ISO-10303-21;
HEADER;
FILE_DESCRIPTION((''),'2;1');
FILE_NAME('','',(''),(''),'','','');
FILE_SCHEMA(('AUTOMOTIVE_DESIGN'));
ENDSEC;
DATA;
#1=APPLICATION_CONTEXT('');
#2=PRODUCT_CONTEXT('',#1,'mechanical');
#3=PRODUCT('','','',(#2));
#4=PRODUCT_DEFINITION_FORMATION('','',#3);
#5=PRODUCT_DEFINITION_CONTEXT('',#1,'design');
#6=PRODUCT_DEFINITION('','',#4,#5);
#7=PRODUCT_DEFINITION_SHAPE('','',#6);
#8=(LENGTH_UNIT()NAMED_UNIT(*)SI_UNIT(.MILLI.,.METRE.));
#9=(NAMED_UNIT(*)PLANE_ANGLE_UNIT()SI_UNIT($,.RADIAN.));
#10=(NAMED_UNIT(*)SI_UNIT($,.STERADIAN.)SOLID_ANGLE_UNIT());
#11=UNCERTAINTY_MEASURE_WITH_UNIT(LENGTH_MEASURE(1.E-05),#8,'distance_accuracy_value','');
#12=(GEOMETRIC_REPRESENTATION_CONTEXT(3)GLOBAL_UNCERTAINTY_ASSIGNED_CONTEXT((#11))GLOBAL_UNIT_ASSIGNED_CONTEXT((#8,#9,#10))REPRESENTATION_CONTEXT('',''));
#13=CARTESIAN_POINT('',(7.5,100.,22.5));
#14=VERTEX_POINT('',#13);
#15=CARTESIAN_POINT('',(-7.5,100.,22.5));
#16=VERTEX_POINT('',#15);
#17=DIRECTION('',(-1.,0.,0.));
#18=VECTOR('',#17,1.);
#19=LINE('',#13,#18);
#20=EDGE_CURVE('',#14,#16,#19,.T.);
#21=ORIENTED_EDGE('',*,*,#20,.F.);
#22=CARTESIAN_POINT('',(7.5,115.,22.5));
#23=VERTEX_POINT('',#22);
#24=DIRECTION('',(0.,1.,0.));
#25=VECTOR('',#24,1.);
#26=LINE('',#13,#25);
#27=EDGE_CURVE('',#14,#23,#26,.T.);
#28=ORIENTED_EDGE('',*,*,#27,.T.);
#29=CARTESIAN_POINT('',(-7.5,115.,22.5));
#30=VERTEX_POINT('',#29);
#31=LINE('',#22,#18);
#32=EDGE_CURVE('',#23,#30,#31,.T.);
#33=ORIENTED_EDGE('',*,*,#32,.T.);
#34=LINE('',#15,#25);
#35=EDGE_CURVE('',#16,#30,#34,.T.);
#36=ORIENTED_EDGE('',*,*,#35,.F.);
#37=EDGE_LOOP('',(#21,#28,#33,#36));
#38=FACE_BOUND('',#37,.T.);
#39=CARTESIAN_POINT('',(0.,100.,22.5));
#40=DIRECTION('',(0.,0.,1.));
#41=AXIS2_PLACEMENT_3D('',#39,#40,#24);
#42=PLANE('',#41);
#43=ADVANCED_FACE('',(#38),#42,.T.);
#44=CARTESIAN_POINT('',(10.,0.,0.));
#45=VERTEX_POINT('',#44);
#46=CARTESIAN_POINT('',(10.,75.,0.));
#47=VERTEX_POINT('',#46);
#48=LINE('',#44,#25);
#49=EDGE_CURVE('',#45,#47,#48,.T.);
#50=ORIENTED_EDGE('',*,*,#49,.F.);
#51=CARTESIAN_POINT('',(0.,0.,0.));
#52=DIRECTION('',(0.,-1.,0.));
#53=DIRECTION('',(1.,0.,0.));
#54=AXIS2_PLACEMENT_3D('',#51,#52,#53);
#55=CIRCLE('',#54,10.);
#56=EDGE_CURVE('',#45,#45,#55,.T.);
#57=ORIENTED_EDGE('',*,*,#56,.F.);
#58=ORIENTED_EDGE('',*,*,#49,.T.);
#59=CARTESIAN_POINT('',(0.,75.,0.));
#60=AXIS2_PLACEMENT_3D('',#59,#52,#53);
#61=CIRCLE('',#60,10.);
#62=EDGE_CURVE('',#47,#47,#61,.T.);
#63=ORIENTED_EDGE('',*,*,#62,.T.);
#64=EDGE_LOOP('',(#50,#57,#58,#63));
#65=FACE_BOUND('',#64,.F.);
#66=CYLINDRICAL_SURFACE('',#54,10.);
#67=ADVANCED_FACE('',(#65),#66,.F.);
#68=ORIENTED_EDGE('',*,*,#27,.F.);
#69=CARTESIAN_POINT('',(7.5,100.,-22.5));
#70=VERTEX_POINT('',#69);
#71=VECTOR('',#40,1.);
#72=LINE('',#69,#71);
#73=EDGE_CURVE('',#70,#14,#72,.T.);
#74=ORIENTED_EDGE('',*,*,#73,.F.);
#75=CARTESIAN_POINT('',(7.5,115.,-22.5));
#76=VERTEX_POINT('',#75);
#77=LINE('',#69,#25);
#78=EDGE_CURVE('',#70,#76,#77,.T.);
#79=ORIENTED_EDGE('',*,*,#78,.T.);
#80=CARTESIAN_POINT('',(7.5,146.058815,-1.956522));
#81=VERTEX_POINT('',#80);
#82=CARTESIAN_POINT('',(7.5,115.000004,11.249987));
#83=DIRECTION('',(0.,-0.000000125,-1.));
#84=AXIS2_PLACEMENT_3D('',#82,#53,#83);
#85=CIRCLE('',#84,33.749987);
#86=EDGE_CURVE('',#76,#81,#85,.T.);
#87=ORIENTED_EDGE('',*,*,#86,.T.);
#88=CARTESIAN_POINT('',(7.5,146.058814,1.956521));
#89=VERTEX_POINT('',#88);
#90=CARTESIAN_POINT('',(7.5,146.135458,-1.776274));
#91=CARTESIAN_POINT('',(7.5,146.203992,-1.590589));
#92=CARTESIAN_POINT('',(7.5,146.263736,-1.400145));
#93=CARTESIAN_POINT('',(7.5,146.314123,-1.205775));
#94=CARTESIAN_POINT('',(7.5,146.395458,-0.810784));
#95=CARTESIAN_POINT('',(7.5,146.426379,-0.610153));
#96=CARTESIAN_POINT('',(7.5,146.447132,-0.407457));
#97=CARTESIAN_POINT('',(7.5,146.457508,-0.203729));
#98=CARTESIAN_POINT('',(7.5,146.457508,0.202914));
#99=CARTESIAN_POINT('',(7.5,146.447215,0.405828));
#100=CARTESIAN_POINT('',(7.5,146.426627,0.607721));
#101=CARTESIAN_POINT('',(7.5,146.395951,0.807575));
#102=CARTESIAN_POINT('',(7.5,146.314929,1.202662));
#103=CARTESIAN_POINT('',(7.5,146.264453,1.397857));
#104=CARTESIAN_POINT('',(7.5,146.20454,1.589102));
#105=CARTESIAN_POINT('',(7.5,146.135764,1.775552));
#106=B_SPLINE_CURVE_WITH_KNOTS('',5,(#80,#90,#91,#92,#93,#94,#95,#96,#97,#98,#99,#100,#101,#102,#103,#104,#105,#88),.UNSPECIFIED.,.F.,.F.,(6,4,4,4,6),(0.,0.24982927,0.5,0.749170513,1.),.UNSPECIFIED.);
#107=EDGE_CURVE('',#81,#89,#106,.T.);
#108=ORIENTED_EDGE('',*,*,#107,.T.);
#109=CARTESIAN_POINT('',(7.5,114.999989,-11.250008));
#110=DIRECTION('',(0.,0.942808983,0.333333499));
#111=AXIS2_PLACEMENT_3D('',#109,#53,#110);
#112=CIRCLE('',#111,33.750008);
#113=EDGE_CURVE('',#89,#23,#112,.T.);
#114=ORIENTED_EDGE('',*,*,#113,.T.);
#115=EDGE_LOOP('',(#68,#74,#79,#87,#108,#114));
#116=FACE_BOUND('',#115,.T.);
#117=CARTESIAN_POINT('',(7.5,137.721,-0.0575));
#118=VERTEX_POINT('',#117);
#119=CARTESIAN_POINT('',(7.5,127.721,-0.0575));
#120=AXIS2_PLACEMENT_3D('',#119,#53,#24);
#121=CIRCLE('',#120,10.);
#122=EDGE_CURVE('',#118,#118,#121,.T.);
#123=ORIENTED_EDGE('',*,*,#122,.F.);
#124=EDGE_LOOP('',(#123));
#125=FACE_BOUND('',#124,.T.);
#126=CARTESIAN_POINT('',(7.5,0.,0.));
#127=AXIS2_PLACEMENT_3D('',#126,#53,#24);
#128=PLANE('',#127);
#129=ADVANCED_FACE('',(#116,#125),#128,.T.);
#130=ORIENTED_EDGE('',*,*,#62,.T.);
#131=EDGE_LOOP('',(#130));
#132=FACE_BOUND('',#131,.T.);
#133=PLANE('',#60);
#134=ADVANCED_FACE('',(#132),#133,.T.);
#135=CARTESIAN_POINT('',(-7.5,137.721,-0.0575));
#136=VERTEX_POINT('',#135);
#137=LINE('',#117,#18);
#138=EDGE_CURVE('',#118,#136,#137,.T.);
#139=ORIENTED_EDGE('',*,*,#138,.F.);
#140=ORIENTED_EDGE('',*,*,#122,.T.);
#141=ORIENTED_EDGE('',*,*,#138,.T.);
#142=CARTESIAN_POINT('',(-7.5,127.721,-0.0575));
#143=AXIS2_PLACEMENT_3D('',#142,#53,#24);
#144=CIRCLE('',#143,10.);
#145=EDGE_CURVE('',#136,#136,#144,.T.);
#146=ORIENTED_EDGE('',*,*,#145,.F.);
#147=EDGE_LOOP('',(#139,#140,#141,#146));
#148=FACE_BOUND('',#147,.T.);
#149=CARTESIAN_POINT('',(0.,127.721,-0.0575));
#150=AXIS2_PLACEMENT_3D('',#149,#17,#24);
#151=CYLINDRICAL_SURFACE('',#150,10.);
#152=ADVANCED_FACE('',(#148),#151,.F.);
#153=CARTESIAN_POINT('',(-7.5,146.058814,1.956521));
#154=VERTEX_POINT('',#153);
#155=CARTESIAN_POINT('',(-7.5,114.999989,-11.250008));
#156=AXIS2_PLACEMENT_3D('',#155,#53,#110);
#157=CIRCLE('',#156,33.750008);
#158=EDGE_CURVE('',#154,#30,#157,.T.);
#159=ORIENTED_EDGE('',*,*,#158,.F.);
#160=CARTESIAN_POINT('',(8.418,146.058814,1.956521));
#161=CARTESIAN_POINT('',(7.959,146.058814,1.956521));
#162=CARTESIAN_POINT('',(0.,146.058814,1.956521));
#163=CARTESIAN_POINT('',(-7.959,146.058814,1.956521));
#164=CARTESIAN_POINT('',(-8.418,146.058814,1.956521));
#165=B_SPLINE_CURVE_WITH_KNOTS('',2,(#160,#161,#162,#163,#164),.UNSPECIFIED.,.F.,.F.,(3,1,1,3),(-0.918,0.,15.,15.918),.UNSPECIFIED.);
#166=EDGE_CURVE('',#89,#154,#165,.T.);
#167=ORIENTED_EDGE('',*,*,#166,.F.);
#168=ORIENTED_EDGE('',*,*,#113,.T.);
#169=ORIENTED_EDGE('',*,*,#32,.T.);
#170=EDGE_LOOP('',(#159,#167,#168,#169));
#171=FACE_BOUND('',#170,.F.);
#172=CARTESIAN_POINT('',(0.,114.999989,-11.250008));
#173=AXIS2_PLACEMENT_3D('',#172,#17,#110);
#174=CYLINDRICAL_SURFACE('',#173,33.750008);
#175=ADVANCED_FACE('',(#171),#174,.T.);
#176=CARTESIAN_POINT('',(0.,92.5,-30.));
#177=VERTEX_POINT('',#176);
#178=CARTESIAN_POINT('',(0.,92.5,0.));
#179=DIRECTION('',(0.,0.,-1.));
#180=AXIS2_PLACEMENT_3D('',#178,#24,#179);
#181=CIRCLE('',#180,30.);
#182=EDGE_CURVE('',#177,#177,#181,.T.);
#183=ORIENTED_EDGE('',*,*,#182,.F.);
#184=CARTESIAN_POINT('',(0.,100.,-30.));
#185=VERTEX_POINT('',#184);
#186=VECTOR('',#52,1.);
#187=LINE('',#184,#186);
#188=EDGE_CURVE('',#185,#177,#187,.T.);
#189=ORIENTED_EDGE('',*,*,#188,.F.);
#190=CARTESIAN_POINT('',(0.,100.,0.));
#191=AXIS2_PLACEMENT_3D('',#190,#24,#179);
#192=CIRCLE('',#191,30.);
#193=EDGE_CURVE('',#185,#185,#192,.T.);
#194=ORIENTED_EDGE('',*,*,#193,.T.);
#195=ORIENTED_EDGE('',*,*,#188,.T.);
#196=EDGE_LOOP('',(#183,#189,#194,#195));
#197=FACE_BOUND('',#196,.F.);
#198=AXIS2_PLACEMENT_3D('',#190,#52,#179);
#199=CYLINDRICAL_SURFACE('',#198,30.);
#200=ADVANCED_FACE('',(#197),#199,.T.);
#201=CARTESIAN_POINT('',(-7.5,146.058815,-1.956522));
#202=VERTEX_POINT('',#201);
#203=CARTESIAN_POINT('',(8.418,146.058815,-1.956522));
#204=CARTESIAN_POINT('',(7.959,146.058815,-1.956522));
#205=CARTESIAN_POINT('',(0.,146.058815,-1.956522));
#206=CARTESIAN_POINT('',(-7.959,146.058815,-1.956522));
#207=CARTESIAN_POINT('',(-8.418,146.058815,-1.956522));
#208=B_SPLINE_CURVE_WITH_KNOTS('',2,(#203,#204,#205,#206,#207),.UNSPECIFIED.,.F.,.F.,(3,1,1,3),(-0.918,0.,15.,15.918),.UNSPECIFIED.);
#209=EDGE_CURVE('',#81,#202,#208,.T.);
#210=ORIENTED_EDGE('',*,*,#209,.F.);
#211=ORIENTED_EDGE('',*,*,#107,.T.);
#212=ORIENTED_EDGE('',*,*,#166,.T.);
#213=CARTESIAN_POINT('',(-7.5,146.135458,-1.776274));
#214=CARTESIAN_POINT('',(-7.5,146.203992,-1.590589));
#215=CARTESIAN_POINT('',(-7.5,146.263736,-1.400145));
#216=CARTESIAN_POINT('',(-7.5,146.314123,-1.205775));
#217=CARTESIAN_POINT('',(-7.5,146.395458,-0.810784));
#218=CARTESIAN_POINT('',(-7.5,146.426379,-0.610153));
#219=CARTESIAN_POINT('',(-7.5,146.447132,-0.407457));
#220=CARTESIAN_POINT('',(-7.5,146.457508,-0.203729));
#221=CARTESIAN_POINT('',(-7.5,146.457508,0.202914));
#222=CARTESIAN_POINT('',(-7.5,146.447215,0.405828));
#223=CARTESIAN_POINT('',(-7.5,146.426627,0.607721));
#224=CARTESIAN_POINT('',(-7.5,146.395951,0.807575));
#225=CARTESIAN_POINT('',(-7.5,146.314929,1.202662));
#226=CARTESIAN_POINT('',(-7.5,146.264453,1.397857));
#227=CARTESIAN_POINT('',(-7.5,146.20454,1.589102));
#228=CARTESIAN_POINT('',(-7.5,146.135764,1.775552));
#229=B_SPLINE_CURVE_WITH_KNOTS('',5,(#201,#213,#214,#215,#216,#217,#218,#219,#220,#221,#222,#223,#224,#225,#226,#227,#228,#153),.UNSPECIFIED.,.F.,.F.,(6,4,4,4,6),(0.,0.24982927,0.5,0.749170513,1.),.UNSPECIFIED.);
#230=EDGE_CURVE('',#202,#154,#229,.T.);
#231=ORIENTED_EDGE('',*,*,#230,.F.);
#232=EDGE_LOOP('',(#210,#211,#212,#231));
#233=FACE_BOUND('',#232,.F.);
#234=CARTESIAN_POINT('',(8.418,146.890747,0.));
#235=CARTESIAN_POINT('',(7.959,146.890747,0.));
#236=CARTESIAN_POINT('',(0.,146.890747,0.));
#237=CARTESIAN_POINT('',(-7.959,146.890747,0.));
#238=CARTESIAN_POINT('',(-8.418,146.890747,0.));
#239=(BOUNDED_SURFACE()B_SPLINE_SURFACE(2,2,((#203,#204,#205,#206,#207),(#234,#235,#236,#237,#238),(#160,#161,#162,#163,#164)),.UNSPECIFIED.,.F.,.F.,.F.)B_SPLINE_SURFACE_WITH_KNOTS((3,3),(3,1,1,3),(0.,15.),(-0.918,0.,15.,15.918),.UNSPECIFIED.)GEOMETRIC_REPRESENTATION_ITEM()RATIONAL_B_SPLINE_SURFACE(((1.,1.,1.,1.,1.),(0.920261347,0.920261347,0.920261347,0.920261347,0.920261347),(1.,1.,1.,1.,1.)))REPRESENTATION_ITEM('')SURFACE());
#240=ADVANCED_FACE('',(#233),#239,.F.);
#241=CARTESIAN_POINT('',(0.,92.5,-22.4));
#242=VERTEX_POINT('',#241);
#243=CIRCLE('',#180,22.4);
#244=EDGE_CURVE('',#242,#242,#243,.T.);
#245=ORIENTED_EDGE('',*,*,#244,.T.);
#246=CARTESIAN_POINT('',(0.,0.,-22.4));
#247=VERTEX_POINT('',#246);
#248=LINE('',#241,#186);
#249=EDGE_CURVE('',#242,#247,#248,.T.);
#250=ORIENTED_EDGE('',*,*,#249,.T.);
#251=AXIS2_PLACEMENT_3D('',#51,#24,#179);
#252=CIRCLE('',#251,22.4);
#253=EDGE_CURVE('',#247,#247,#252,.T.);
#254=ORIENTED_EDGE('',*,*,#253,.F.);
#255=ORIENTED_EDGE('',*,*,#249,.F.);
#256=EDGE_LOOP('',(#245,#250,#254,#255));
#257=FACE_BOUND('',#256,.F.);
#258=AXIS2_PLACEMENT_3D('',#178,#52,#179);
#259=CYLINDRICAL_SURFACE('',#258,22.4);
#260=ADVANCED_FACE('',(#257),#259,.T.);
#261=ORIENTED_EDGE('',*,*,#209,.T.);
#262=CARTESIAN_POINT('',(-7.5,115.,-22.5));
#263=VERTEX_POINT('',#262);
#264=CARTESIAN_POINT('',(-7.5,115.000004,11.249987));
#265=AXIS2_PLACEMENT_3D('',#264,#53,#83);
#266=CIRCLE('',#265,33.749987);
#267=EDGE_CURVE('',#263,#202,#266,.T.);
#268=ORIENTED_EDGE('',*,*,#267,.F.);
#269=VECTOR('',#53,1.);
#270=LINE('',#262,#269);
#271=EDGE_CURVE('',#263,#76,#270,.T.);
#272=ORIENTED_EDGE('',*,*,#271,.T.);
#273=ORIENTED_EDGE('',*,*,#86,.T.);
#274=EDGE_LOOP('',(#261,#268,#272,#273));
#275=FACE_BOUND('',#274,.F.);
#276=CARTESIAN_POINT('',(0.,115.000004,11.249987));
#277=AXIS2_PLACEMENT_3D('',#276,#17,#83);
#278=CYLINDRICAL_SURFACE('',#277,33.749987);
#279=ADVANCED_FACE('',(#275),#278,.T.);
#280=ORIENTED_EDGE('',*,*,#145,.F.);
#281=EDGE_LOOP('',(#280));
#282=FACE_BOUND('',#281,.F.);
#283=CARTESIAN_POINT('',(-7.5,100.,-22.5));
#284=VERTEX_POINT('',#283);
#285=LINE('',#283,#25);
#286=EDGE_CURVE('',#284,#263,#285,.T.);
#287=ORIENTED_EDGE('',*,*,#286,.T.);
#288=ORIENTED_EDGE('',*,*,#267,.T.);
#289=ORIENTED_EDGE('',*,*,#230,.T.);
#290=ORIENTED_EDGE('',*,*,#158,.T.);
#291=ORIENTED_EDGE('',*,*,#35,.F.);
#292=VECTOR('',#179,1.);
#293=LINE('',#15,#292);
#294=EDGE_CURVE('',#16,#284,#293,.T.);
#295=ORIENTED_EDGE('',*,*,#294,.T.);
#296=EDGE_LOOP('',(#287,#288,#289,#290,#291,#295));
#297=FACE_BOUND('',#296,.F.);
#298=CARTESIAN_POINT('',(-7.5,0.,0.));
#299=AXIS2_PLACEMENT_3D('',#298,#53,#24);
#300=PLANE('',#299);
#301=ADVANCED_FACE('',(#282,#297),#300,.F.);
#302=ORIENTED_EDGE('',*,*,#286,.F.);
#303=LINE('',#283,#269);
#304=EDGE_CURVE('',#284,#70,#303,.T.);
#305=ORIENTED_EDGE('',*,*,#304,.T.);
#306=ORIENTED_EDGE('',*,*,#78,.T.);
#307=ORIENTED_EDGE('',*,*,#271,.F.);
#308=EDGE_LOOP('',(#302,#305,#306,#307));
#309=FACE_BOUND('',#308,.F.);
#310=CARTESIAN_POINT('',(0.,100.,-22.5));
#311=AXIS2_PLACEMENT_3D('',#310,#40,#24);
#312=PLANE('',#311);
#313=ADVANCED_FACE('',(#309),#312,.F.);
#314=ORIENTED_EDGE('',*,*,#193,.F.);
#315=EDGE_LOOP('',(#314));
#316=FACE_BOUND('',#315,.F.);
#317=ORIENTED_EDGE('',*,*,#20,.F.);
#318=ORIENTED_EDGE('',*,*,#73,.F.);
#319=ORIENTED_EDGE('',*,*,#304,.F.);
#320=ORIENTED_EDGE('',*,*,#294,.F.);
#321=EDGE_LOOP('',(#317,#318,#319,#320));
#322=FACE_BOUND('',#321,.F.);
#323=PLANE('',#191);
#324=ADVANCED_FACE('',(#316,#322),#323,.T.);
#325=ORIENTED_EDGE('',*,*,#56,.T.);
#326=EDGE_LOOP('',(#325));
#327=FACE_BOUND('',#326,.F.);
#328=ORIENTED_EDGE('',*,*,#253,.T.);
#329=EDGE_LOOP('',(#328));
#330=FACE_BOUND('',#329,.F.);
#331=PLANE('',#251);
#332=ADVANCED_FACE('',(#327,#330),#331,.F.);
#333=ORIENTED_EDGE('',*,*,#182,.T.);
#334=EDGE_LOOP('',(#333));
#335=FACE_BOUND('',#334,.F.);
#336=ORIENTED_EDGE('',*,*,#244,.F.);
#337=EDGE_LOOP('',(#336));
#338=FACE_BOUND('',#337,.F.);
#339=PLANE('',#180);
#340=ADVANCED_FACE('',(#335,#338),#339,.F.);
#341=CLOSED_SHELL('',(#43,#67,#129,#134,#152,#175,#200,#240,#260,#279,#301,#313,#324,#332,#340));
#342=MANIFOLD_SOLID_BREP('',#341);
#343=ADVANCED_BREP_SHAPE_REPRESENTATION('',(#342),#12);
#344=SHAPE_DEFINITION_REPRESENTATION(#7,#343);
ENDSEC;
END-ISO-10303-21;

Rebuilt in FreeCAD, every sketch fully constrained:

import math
import FreeCAD as App
import Part
import Sketcher
from FreeCAD import Vector
Q = App.Units.Quantity


def edges_at(feature, points):
    """Names of the edges that pass closest to the given points."""
    edges = feature.Shape.Edges
    near = lambda p: min(range(len(edges)), key=lambda i: edges[i].distToShape(Part.Vertex(*p))[0])
    return sorted({f"Edge{near(p) + 1}" for p in points})


def add_polygon(sketch, points):
    """Adds a closed chain of lines whose ends are joined by coincident constraints."""
    first, n = sketch.GeometryCount, len(points)
    for a, b in zip(points, points[1:] + points[:1]):
        sketch.addGeometry(Part.LineSegment(App.Vector(*a, 0), App.Vector(*b, 0)), False)
    for i in range(n):
        sketch.addConstraint(Sketcher.Constraint("Coincident", first + i, 2, first + (i + 1) % n, 1))

doc = App.newDocument("Part")
params = doc.addObject("Spreadsheet::Sheet", "Params")
for row, (alias, value) in enumerate([
    ("sketch1_width", "100 mm"),
    ("sketch1_height", "30 mm"),
    ("sketch1_width2", "7.5 mm"),
    ("sketch1_height2", "7.6 mm"),
    ("revolution_angle", "360 deg"),
    ("sketch2_diameter", "20 mm"),
    ("sketch2_width", "15 mm"),
    ("sketch2_radius", "33.75 mm"),
    ("pad1_length", "15 mm"),
    ("fillet_radius", "5 mm"),
    ("sketch3_diameter", "20 mm"),
    ("pocket1_length", "75 mm"),
], start=1):
    params.set(f"A{row}", alias)
    params.set(f"B{row}", "=" + value)
    params.setAlias(f"B{row}", alias)

body = doc.addObject("PartDesign::Body", "Body")

# Sketch on YZ plane
sketch1 = body.newObject("Sketcher::SketchObject", "Sketch")
sketch1.AttachmentSupport = (doc.getObject("YZ_Plane"), [""])
sketch1.MapMode = "FlatFace"
add_polygon(sketch1, [(100, 0), (0, 0), (0, -22), (92, -22), (92, -30), (100, -30)])  # lines 0-5
sketch1.addConstraint([
    Sketcher.Constraint("Horizontal", 0),
    Sketcher.Constraint("Vertical", 1),
    Sketcher.Constraint("Horizontal", 2),
    Sketcher.Constraint("Vertical", 3),
    Sketcher.Constraint("Horizontal", 4),
    Sketcher.Constraint("Vertical", 5),
    Sketcher.Constraint("Coincident", 0, 2, -1, 1),
    Sketcher.Constraint("DistanceX", 0, 2, 0, 1, Q("100 mm")),
    Sketcher.Constraint("DistanceY", 5, 1, 5, 2, Q("30 mm")),
    Sketcher.Constraint("DistanceX", 4, 1, 4, 2, Q("7.5 mm")),
    Sketcher.Constraint("DistanceY", 3, 2, 3, 1, Q("7.6 mm")),
])
sketch1.setExpression("Constraints[13]", "Params.sketch1_width")
sketch1.setExpression("Constraints[14]", "Params.sketch1_height")
sketch1.setExpression("Constraints[15]", "Params.sketch1_width2")
sketch1.setExpression("Constraints[16]", "Params.sketch1_height2")
revolution = body.newObject("PartDesign::Revolution", "Revolution")
revolution.Profile = sketch1
revolution.ReferenceAxis = (sketch1, ["H_Axis"])
revolution.setExpression("Angle", "Params.revolution_angle")

# Sketch on YZ plane
sketch2 = body.newObject("Sketcher::SketchObject", "Sketch001")
sketch2.AttachmentSupport = (doc.getObject("YZ_Plane"), [""])
sketch2.MapMode = "FlatFace"
sketch2.addGeometry([
    Part.LineSegment(Vector(100, 22, 0), Vector(100, -22, 0)),  # 0
    Part.LineSegment(Vector(100, -22, 0), Vector(115, -22, 0)),  # 1
    Part.ArcOfCircle(Part.Circle(Vector(115, 11, 0), Vector(0, 0, 1), 34), math.radians(-90), math.radians(-19)),  # 2
    Part.ArcOfCircle(Part.Circle(Vector(115, -11, 0), Vector(0, 0, 1), 34), math.radians(19), math.radians(90)),  # 3
    Part.LineSegment(Vector(115, 22, 0), Vector(100, 22, 0)),  # 4
    Part.Circle(Vector(128, 0, 0), Vector(0, 0, 1), 10),  # 5
], False)
sketch2.addConstraint([
    Sketcher.Constraint("Coincident", 0, 2, 1, 1),
    Sketcher.Constraint("Tangent", 1, 2, 2, 1),
    Sketcher.Constraint("Coincident", 2, 2, 3, 1),
    Sketcher.Constraint("Tangent", 3, 2, 4, 1),
    Sketcher.Constraint("Coincident", 4, 2, 0, 1),
    Sketcher.Constraint("Vertical", 0),
    Sketcher.Constraint("Horizontal", 1),
    Sketcher.Constraint("Horizontal", 4),
    Sketcher.Constraint("Equal", 2, 3),
    Sketcher.Constraint("Symmetric", 2, 3, 3, 3, -1),
    Sketcher.Constraint("Diameter", 5, Q("20 mm")),
    Sketcher.Constraint("DistanceX", 1, 1, 1, 2, Q("15 mm")),
    Sketcher.Constraint("Radius", 2, Q("33.75 mm")),
    Sketcher.Constraint("DistanceX", -1, 1, 0, 2, Q("100 mm")),
    Sketcher.Constraint("DistanceY", 0, 2, -1, 1, Q("22.5 mm")),
    Sketcher.Constraint("DistanceX", -1, 1, 5, 3, Q("127.721 mm")),
    Sketcher.Constraint("DistanceY", 5, 3, -1, 1, Q("0.0575 mm")),
])
sketch2.setExpression("Constraints[10]", "Params.sketch2_diameter")
sketch2.setExpression("Constraints[11]", "Params.sketch2_width")
sketch2.setExpression("Constraints[12]", "Params.sketch2_radius")
pad1 = body.newObject("PartDesign::Pad", "Pad")
pad1.Profile = sketch2
pad1.setExpression("Length", "Params.pad1_length")
pad1.Midplane = True
doc.recompute()

fillet = body.newObject("PartDesign::Fillet", "Fillet")
fillet.Base = (pad1, edges_at(pad1, [(0, 146.82, 0)]))
fillet.setExpression("Radius", "Params.fillet_radius")

# Sketch on XZ plane
sketch3 = body.newObject("Sketcher::SketchObject", "Sketch002")
sketch3.AttachmentSupport = (doc.getObject("XZ_Plane"), [""])
sketch3.MapMode = "FlatFace"
sketch3.addGeometry(Part.Circle(Vector(0, 0, 0), Vector(0, 0, 1), 10), False)
sketch3.addConstraint([
    Sketcher.Constraint("Coincident", 0, 3, -1, 1),
    Sketcher.Constraint("Diameter", 0, Q("20 mm")),
])
sketch3.setExpression("Constraints[1]", "Params.sketch3_diameter")
pocket1 = body.newObject("PartDesign::Pocket", "Pocket")
pocket1.Profile = sketch3
pocket1.setExpression("Length", "Params.pocket1_length")

doc.recompute()
